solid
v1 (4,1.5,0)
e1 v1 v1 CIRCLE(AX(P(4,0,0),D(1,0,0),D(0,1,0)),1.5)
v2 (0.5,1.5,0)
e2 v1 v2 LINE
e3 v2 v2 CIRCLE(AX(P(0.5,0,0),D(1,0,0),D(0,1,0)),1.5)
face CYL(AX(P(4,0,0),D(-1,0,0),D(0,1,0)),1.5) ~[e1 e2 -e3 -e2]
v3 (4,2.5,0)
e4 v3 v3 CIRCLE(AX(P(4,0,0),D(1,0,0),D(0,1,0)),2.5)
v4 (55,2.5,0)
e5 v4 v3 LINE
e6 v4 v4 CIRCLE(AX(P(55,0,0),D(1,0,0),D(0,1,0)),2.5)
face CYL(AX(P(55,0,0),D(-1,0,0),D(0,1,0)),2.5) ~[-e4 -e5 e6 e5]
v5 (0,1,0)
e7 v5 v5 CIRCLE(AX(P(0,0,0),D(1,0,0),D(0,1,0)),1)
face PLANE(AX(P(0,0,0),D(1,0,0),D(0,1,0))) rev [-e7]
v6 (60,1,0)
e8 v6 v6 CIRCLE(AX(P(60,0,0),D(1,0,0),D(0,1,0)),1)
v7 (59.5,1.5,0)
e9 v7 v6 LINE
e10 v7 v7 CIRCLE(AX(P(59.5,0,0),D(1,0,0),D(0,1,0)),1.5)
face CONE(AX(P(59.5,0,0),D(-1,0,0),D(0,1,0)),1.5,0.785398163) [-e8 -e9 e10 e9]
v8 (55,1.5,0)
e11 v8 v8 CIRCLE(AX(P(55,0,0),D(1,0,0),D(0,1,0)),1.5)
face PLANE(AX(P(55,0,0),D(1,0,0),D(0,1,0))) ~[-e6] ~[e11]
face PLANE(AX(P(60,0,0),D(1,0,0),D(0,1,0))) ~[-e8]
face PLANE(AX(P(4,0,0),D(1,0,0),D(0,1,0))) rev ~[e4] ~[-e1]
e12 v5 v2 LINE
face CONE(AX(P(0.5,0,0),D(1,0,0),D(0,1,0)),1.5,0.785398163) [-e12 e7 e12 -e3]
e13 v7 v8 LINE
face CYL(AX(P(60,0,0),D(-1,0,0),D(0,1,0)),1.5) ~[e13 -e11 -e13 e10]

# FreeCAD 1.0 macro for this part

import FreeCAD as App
import Part
import Sketcher
from FreeCAD import Vector
Q = App.Units.Quantity


def edges_at(feature, points):
    """Names of the edges that pass closest to the given points."""
    edges = feature.Shape.Edges
    near = lambda p: min(range(len(edges)), key=lambda i: edges[i].distToShape(Part.Vertex(*p))[0])
    return sorted({f"Edge{near(p) + 1}" for p in points})

doc = App.newDocument("Part")
body = doc.addObject("PartDesign::Body", "Body")

# Sketch on XY plane
sketch1 = body.newObject("Sketcher::SketchObject", "Sketch")
sketch1.AttachmentSupport = (doc.getObject("XY_Plane"), [""])
sketch1.MapMode = "FlatFace"
sketch1.addGeometry([
    Part.LineSegment(Vector(0, 1.5, 0), Vector(0, 0, 0)),  # 0
    Part.LineSegment(Vector(0, 0, 0), Vector(60, 0, 0)),  # 1
    Part.LineSegment(Vector(60, 0, 0), Vector(60, 1.5, 0)),  # 2
    Part.LineSegment(Vector(60, 1.5, 0), Vector(55, 1.5, 0)),  # 3
    Part.LineSegment(Vector(55, 1.5, 0), Vector(55, 2.5, 0)),  # 4
    Part.LineSegment(Vector(55, 2.5, 0), Vector(4, 2.5, 0)),  # 5
    Part.LineSegment(Vector(4, 2.5, 0), Vector(4, 1.5, 0)),  # 6
    Part.LineSegment(Vector(4, 1.5, 0), Vector(0, 1.5, 0)),  # 7
], False)
sketch1.addConstraint([
    Sketcher.Constraint("Coincident", 0, 2, 1, 1),
    Sketcher.Constraint("Coincident", 1, 2, 2, 1),
    Sketcher.Constraint("Coincident", 2, 2, 3, 1),
    Sketcher.Constraint("Coincident", 3, 2, 4, 1),
    Sketcher.Constraint("Coincident", 4, 2, 5, 1),
    Sketcher.Constraint("Coincident", 5, 2, 6, 1),
    Sketcher.Constraint("Coincident", 6, 2, 7, 1),
    Sketcher.Constraint("Coincident", 7, 2, 0, 1),
    Sketcher.Constraint("Vertical", 0),
    Sketcher.Constraint("Horizontal", 1),
    Sketcher.Constraint("Vertical", 2),
    Sketcher.Constraint("Horizontal", 3),
    Sketcher.Constraint("Vertical", 4),
    Sketcher.Constraint("Horizontal", 5),
    Sketcher.Constraint("Vertical", 6),
    Sketcher.Constraint("Horizontal", 7),
    Sketcher.Constraint("Coincident", 0, 2, -1, 1),
    Sketcher.Constraint("Horizontal", 3, 2, 6, 2),
    Sketcher.Constraint("DistanceX", 1, 1, 1, 2, Q("60 mm")),
    Sketcher.Constraint("DistanceX", 3, 2, 3, 1, Q("5 mm")),
    Sketcher.Constraint("DistanceX", 7, 2, 7, 1, Q("4 mm")),
    Sketcher.Constraint("DistanceY", 4, 1, 4, 2, Q("1 mm")),
    Sketcher.Constraint("DistanceY", 0, 2, 0, 1, Q("1.5 mm")),
])
revolution = body.newObject("PartDesign::Revolution", "Revolution")
revolution.Profile = sketch1
revolution.ReferenceAxis = (sketch1, ["H_Axis"])
revolution.Angle = 360
doc.recompute()

chamfer = body.newObject("PartDesign::Chamfer", "Chamfer")
chamfer.Base = (revolution, edges_at(revolution, [(60, -1.5, 0), (0, -1.5, 0)]))
chamfer.Size = 0.5

doc.recompute()
